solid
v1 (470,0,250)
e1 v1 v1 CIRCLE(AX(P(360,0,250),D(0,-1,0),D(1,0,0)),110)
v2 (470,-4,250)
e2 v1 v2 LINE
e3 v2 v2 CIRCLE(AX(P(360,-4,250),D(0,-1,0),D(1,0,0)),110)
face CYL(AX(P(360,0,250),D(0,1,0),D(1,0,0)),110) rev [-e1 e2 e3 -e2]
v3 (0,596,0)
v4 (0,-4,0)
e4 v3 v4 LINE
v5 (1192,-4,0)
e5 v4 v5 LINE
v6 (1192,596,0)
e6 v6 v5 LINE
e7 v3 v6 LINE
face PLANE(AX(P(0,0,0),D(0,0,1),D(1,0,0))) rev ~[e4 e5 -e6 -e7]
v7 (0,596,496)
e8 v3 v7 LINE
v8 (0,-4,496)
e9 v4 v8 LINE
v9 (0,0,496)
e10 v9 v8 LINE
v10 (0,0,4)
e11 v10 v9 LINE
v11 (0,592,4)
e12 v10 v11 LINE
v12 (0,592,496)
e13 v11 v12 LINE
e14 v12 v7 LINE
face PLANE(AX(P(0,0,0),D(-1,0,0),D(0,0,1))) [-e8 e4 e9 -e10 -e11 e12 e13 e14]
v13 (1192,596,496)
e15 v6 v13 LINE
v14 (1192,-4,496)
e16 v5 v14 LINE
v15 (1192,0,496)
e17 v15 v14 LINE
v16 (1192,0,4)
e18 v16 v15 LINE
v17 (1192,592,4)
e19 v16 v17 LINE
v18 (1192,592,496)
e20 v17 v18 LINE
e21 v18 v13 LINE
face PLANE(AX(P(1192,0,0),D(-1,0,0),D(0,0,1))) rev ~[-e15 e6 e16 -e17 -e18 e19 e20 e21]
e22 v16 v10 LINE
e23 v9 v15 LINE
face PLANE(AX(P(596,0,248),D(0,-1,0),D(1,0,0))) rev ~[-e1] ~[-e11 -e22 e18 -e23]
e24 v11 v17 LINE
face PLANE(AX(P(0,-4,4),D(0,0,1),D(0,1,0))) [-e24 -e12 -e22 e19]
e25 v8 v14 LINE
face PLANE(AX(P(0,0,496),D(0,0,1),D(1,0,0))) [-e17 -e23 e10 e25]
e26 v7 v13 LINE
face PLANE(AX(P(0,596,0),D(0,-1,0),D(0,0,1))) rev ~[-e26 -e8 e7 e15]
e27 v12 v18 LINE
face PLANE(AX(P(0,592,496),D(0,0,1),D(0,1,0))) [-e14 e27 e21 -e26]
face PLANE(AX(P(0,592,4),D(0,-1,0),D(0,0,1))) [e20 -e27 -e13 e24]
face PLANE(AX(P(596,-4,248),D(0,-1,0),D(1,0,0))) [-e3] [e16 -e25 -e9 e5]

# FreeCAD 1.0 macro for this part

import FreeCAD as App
import Part
import Sketcher

V = App.Vector


def add_polygon(sketch, points):
    """Adds a closed chain of lines whose ends are joined by coincident constraints."""
    first, n = sketch.GeometryCount, len(points)
    for a, b in zip(points, points[1:] + points[:1]):
        sketch.addGeometry(Part.LineSegment(App.Vector(*a, 0), App.Vector(*b, 0)), False)
    for i in range(n):
        sketch.addConstraint(Sketcher.Constraint("Coincident", first + i, 2, first + (i + 1) % n, 1))

doc = App.newDocument("Part")
body = doc.addObject("PartDesign::Body", "Body")

# Sketch on XZ plane
sketch1 = body.newObject("Sketcher::SketchObject", "Sketch")
sketch1.AttachmentSupport = (doc.getObject("XZ_Plane"), [""])
sketch1.MapMode = "FlatFace"
add_polygon(sketch1, [(0, 496), (0, 0), (1192, 0), (1192, 496)])  # lines 0-3
sketch1.addGeometry(Part.Circle(V(360, 250, 0), V(0, 0, 1), 110), False)  # 4
sketch1.addConstraint([
    Sketcher.Constraint("Vertical", 0),
    Sketcher.Constraint("Horizontal", 1),
    Sketcher.Constraint("Vertical", 2),
    Sketcher.Constraint("Horizontal", 3),
    Sketcher.Constraint("Coincident", 0, 2, -1, 1),
    Sketcher.Constraint("Diameter", 4, 220.0),
    Sketcher.Constraint("DistanceX", 1, 1, 1, 2, 1192.0),
    Sketcher.Constraint("DistanceY", 0, 2, 0, 1, 496.0),
    Sketcher.Constraint("DistanceX", -1, 1, 4, 3, 360.0),
    Sketcher.Constraint("DistanceY", -1, 1, 4, 3, 250.0),
])
pad1 = body.newObject("PartDesign::Pad", "Pad")
pad1.Profile = sketch1
pad1.Length = 4

# Sketch on YZ plane
sketch2 = body.newObject("Sketcher::SketchObject", "Sketch001")
sketch2.AttachmentSupport = (doc.getObject("YZ_Plane"), [""])
sketch2.MapMode = "FlatFace"
add_polygon(sketch2, [(-4, 4), (-4, 0), (596, 0), (596, 496), (592, 496), (592, 4)])  # lines 0-5
sketch2.addConstraint([
    Sketcher.Constraint("Vertical", 0),
    Sketcher.Constraint("Horizontal", 1),
    Sketcher.Constraint("Vertical", 2),
    Sketcher.Constraint("Horizontal", 3),
    Sketcher.Constraint("Vertical", 4),
    Sketcher.Constraint("Horizontal", 5),
    Sketcher.Constraint("PointOnObject", 0, 2, -1),
    Sketcher.Constraint("Equal", 3, 0),
    Sketcher.Constraint("DistanceX", 1, 1, 1, 2, 600.0),
    Sketcher.Constraint("DistanceX", 3, 2, 3, 1, 4.0),
    Sketcher.Constraint("DistanceY", 2, 1, 2, 2, 496.0),
    Sketcher.Constraint("DistanceX", 0, 2, -1, 1, 4.0),
])
pad2 = body.newObject("PartDesign::Pad", "Pad001")
pad2.Profile = sketch2
pad2.Length = 1192

doc.recompute()
